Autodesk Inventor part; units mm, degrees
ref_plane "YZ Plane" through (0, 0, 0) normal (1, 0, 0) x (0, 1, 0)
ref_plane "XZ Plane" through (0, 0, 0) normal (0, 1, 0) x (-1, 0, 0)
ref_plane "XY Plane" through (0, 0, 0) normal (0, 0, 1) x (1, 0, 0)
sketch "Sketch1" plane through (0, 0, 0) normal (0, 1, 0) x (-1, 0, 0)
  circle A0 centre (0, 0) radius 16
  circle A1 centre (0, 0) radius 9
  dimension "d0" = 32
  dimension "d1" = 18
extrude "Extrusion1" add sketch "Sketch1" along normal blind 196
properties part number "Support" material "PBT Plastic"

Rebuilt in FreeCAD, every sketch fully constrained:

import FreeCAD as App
import Part
import Sketcher
from FreeCAD import Vector
Q = App.Units.Quantity

doc = App.newDocument("Part")
body = doc.addObject("PartDesign::Body", "Body")

# Sketch on XZ plane
sketch1 = body.newObject("Sketcher::SketchObject", "Sketch")
sketch1.AttachmentSupport = (doc.getObject("XZ_Plane"), [""])
sketch1.MapMode = "FlatFace"
sketch1.addGeometry(Part.Circle(Vector(0, 0, 0), Vector(0, 0, 1), 16), False)
sketch1.addGeometry(Part.Circle(Vector(0, 0, 0), Vector(0, 0, 1), 9), False)
sketch1.addConstraint(Sketcher.Constraint("Coincident", 0, 3, -1, 1))
sketch1.addConstraint(Sketcher.Constraint("Coincident", 1, 3, -1, 1))
sketch1.addConstraint(Sketcher.Constraint("Diameter", 0, Q("32 mm")))
sketch1.addConstraint(Sketcher.Constraint("Diameter", 1, Q("18 mm")))
pad1 = body.newObject("PartDesign::Pad", "Pad")
pad1.Profile = sketch1
pad1.Length = 196
pad1.Reversed = True

doc.recompute()
